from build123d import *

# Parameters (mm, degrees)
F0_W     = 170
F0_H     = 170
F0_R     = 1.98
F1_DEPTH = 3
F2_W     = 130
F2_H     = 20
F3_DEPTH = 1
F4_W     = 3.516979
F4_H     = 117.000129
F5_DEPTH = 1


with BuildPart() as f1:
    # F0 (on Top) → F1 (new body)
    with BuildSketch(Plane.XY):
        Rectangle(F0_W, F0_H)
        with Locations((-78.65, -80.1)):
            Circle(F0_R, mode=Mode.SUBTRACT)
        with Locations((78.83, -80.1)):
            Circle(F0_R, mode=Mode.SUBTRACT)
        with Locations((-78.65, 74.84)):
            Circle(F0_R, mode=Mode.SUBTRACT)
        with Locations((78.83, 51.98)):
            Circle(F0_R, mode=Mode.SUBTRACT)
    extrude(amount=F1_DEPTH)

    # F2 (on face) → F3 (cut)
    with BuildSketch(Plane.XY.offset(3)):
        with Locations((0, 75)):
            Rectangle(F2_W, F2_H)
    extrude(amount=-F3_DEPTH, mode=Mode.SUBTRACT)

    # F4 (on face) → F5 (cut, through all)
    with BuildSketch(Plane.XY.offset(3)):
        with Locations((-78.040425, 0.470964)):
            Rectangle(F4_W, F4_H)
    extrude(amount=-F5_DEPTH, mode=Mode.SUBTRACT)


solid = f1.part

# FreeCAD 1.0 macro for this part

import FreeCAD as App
import Part
import Sketcher

V = App.Vector

doc = App.newDocument("Part")
params = doc.addObject("Spreadsheet::Sheet", "Params")
for row, (alias, value) in enumerate([
    ("sketch1_diameter", "3.96 mm"),
    ("sketch1_width", "170 mm"),
    ("pad1_length", "3 mm"),
    ("sketch2_width", "130 mm"),
    ("sketch2_height", "20 mm"),
    ("pocket1_length", "1 mm"),
    ("pocket2_length", "1 mm"),
], start=1):
    params.set(f"A{row}", alias)
    params.set(f"B{row}", "=" + value)
    params.setAlias(f"B{row}", alias)

body = doc.addObject("PartDesign::Body", "Body")

# Sketch on XY plane
sketch1 = doc.addObject("Sketcher::SketchObject", "Sketch")
body.addObject(sketch1)
sketch1.AttachmentSupport = (doc.XY_Plane, [""])
sketch1.MapMode = "FlatFace"
sketch1.addGeometry(Part.LineSegment(V(-85, 85, 0), V(-85, -85, 0)), False)
sketch1.addGeometry(Part.LineSegment(V(-85, -85, 0), V(85, -85, 0)), False)
sketch1.addGeometry(Part.LineSegment(V(85, -85, 0), V(85, 85, 0)), False)
sketch1.addGeometry(Part.LineSegment(V(85, 85, 0), V(-85, 85, 0)), False)
sketch1.addGeometry(Part.Circle(V(-78.7, -80.1, 0), V(0, 0, 1), 2), False)
sketch1.addGeometry(Part.Circle(V(78.8, -80.1, 0), V(0, 0, 1), 2), False)
sketch1.addGeometry(Part.Circle(V(-78.7, 74.8, 0), V(0, 0, 1), 2), False)
sketch1.addGeometry(Part.Circle(V(78.8, 52, 0), V(0, 0, 1), 2), False)
sketch1.addConstraint(Sketcher.Constraint("Coincident", 0, 2, 1, 1))
sketch1.addConstraint(Sketcher.Constraint("Coincident", 1, 2, 2, 1))
sketch1.addConstraint(Sketcher.Constraint("Coincident", 2, 2, 3, 1))
sketch1.addConstraint(Sketcher.Constraint("Coincident", 3, 2, 0, 1))
sketch1.addConstraint(Sketcher.Constraint("Vertical", 0))
sketch1.addConstraint(Sketcher.Constraint("Horizontal", 1))
sketch1.addConstraint(Sketcher.Constraint("Vertical", 2))
sketch1.addConstraint(Sketcher.Constraint("Horizontal", 3))
sketch1.addConstraint(Sketcher.Constraint("Equal", 4, 5))
sketch1.addConstraint(Sketcher.Constraint("Equal", 5, 6))
sketch1.addConstraint(Sketcher.Constraint("Equal", 6, 7))
sketch1.addConstraint(Sketcher.Constraint("Symmetric", 0, 2, 2, 2, -1, 1))
sketch1.addConstraint(Sketcher.Constraint("Horizontal", 4, 3, 5, 3))
sketch1.addConstraint(Sketcher.Constraint("Vertical", 4, 3, 6, 3))
sketch1.addConstraint(Sketcher.Constraint("Vertical", 5, 3, 7, 3))
sketch1.addConstraint(Sketcher.Constraint("Equal", 3, 0))
sketch1.addConstraint(Sketcher.Constraint("Diameter", 4, 3.96))
sketch1.addConstraint(Sketcher.Constraint("DistanceX", 1, 1, 1, 2, 170.0))
sketch1.addConstraint(Sketcher.Constraint("DistanceY", 4, 3, -1, 1, 80.1))
sketch1.addConstraint(Sketcher.Constraint("DistanceX", 4, 3, -1, 1, 78.65))
sketch1.addConstraint(Sketcher.Constraint("DistanceX", -1, 1, 5, 3, 78.83))
sketch1.addConstraint(Sketcher.Constraint("DistanceY", -1, 1, 6, 3, 74.84))
sketch1.addConstraint(Sketcher.Constraint("DistanceY", -1, 1, 7, 3, 51.98))
sketch1.setExpression("Constraints[16]", "Params.sketch1_diameter")
sketch1.setExpression("Constraints[17]", "Params.sketch1_width")
pad1 = doc.addObject("PartDesign::Pad", "Pad")
body.addObject(pad1)
pad1.Profile = sketch1
pad1.setExpression("Length", "Params.pad1_length")

# Sketch on XY plane
sketch2 = doc.addObject("Sketcher::SketchObject", "Sketch001")
body.addObject(sketch2)
sketch2.AttachmentSupport = (doc.XY_Plane, [""])
sketch2.MapMode = "FlatFace"
sketch2.AttachmentOffset = App.Placement(V(0, 0, 3), App.Rotation())
sketch2.addGeometry(Part.LineSegment(V(-65, 85, 0), V(-65, 65, 0)), False)
sketch2.addGeometry(Part.LineSegment(V(-65, 65, 0), V(65, 65, 0)), False)
sketch2.addGeometry(Part.LineSegment(V(65, 65, 0), V(65, 85, 0)), False)
sketch2.addGeometry(Part.LineSegment(V(65, 85, 0), V(-65, 85, 0)), False)
sketch2.addConstraint(Sketcher.Constraint("Coincident", 0, 2, 1, 1))
sketch2.addConstraint(Sketcher.Constraint("Coincident", 1, 2, 2, 1))
sketch2.addConstraint(Sketcher.Constraint("Coincident", 2, 2, 3, 1))
sketch2.addConstraint(Sketcher.Constraint("Coincident", 3, 2, 0, 1))
sketch2.addConstraint(Sketcher.Constraint("Vertical", 0))
sketch2.addConstraint(Sketcher.Constraint("Horizontal", 1))
sketch2.addConstraint(Sketcher.Constraint("Vertical", 2))
sketch2.addConstraint(Sketcher.Constraint("Horizontal", 3))
sketch2.addConstraint(Sketcher.Constraint("DistanceX", 1, 1, 1, 2, 130.0))
sketch2.addConstraint(Sketcher.Constraint("DistanceY", 0, 2, 0, 1, 20.0))
sketch2.addConstraint(Sketcher.Constraint("DistanceX", 0, 2, -1, 1, 65.0))
sketch2.addConstraint(Sketcher.Constraint("DistanceY", -1, 1, 0, 2, 65.0))
sketch2.setExpression("Constraints[8]", "Params.sketch2_width")
sketch2.setExpression("Constraints[9]", "Params.sketch2_height")
pocket1 = doc.addObject("PartDesign::Pocket", "Pocket")
body.addObject(pocket1)
pocket1.Profile = sketch2
pocket1.setExpression("Length", "Params.pocket1_length")

# Sketch on XY plane
sketch3 = doc.addObject("Sketcher::SketchObject", "Sketch002")
body.addObject(sketch3)
sketch3.AttachmentSupport = (doc.XY_Plane, [""])
sketch3.MapMode = "FlatFace"
sketch3.AttachmentOffset = App.Placement(V(0, 0, 3), App.Rotation())
sketch3.addGeometry(Part.LineSegment(V(-79.8, 59, 0), V(-79.8, -58, 0)), False)
sketch3.addGeometry(Part.LineSegment(V(-79.8, -58, 0), V(-76.3, -58, 0)), False)
sketch3.addGeometry(Part.LineSegment(V(-76.3, -58, 0), V(-76.3, 59, 0)), False)
sketch3.addGeometry(Part.LineSegment(V(-76.3, 59, 0), V(-79.8, 59, 0)), False)
sketch3.addConstraint(Sketcher.Constraint("Coincident", 0, 2, 1, 1))
sketch3.addConstraint(Sketcher.Constraint("Coincident", 1, 2, 2, 1))
sketch3.addConstraint(Sketcher.Constraint("Coincident", 2, 2, 3, 1))
sketch3.addConstraint(Sketcher.Constraint("Coincident", 3, 2, 0, 1))
sketch3.addConstraint(Sketcher.Constraint("Vertical", 0))
sketch3.addConstraint(Sketcher.Constraint("Horizontal", 1))
sketch3.addConstraint(Sketcher.Constraint("Vertical", 2))
sketch3.addConstraint(Sketcher.Constraint("Horizontal", 3))
sketch3.addConstraint(Sketcher.Constraint("DistanceX", 1, 1, 1, 2, 3.516979))
sketch3.addConstraint(Sketcher.Constraint("DistanceY", 0, 2, 0, 1, 117.000129))
sketch3.addConstraint(Sketcher.Constraint("DistanceY", 0, 2, -1, 1, 58.0291))
sketch3.addConstraint(Sketcher.Constraint("DistanceX", 0, 2, -1, 1, 79.798914))
pocket2 = doc.addObject("PartDesign::Pocket", "Pocket001")
body.addObject(pocket2)
pocket2.Profile = sketch3
pocket2.setExpression("Length", "Params.pocket2_length")

doc.recompute()
